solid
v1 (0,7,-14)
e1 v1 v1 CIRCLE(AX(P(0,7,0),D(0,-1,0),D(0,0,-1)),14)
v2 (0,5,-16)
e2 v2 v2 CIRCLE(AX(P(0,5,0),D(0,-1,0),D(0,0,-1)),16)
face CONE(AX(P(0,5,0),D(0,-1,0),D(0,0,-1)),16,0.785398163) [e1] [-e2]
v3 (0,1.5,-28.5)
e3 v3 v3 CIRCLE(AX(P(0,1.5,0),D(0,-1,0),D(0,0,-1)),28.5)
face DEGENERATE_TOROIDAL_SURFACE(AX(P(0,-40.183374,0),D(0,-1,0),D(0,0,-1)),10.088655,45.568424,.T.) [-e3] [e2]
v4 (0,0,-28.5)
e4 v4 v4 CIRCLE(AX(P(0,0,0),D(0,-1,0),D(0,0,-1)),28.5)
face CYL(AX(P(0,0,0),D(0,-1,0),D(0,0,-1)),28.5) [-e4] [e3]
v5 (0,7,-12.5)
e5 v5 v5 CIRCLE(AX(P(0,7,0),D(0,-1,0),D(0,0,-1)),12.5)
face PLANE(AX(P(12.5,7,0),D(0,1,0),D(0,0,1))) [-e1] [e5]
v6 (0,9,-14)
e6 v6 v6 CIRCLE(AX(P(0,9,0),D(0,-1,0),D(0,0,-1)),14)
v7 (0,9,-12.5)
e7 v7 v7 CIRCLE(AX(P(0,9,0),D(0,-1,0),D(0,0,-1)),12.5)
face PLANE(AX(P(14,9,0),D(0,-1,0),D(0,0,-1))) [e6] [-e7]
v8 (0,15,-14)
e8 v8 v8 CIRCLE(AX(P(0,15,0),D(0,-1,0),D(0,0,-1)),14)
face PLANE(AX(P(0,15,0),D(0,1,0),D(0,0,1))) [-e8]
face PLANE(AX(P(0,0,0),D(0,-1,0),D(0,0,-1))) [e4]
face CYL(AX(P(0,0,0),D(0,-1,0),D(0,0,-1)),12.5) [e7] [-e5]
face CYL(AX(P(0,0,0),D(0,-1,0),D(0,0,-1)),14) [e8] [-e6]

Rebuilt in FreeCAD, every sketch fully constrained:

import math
import FreeCAD as App
import Part
import Sketcher
Q = App.Units.Quantity

doc = App.newDocument("Part")
body = doc.addObject("PartDesign::Body", "Body")

sketch1 = body.newObject("Sketcher::SketchObject", "Sketch")
sketch1.AttachmentSupport = (doc.getObject("XY_Plane"), [""])
sketch1.MapMode = "FlatFace"
sketch1.addGeometry(Part.LineSegment(App.Vector(0, 0, 0), App.Vector(28.5, 0, 0)), False)
sketch1.addGeometry(Part.LineSegment(App.Vector(28.5, 0, 0), App.Vector(28.5, 1.5, 0)), False)
sketch1.addGeometry(Part.ArcOfCircle(Part.Circle(App.Vector(10.1, -40.2, 0), App.Vector(0, 0, 1), 45.6), math.radians(66.17), math.radians(82.55)), False)
sketch1.addGeometry(Part.LineSegment(App.Vector(16, 5, 0), App.Vector(14, 7, 0)), False)
sketch1.addGeometry(Part.LineSegment(App.Vector(14, 7, 0), App.Vector(12.5, 7, 0)), False)
sketch1.addGeometry(Part.LineSegment(App.Vector(12.5, 7, 0), App.Vector(12.5, 9, 0)), False)
sketch1.addGeometry(Part.LineSegment(App.Vector(12.5, 9, 0), App.Vector(14, 9, 0)), False)
sketch1.addGeometry(Part.LineSegment(App.Vector(14, 9, 0), App.Vector(14, 15, 0)), False)
sketch1.addGeometry(Part.LineSegment(App.Vector(14, 15, 0), App.Vector(0, 15, 0)), False)
sketch1.addGeometry(Part.LineSegment(App.Vector(0, 15, 0), App.Vector(0, 0, 0)), False)
sketch1.addConstraint(Sketcher.Constraint("Coincident", 0, 2, 1, 1))
sketch1.addConstraint(Sketcher.Constraint("Coincident", 1, 2, 2, 1))
sketch1.addConstraint(Sketcher.Constraint("Coincident", 2, 2, 3, 1))
sketch1.addConstraint(Sketcher.Constraint("Coincident", 3, 2, 4, 1))
sketch1.addConstraint(Sketcher.Constraint("Coincident", 4, 2, 5, 1))
sketch1.addConstraint(Sketcher.Constraint("Coincident", 5, 2, 6, 1))
sketch1.addConstraint(Sketcher.Constraint("Coincident", 6, 2, 7, 1))
sketch1.addConstraint(Sketcher.Constraint("Coincident", 7, 2, 8, 1))
sketch1.addConstraint(Sketcher.Constraint("Coincident", 8, 2, 9, 1))
sketch1.addConstraint(Sketcher.Constraint("Coincident", 9, 2, 0, 1))
sketch1.addConstraint(Sketcher.Constraint("Horizontal", 0))
sketch1.addConstraint(Sketcher.Constraint("Vertical", 1))
sketch1.addConstraint(Sketcher.Constraint("Horizontal", 4))
sketch1.addConstraint(Sketcher.Constraint("Vertical", 5))
sketch1.addConstraint(Sketcher.Constraint("Horizontal", 6))
sketch1.addConstraint(Sketcher.Constraint("Vertical", 7))
sketch1.addConstraint(Sketcher.Constraint("Horizontal", 8))
sketch1.addConstraint(Sketcher.Constraint("Vertical", 9))
sketch1.addConstraint(Sketcher.Constraint("Coincident", 9, 2, -1, 1))
sketch1.addConstraint(Sketcher.Constraint("Vertical", 3, 2, 6, 2))
sketch1.addConstraint(Sketcher.Constraint("Equal", 6, 1))
sketch1.addConstraint(Sketcher.Constraint("DistanceX", 8, 2, 8, 1, Q("14 mm")))
sketch1.addConstraint(Sketcher.Constraint("DistanceY", 5, 1, 5, 2, Q("2 mm")))
sketch1.addConstraint(Sketcher.Constraint("DistanceY", 7, 1, 7, 2, Q("6 mm")))
sketch1.addConstraint(Sketcher.Constraint("DistanceY", 9, 2, 9, 1, Q("15 mm")))
sketch1.addConstraint(Sketcher.Constraint("Angle", 3, Q("135 deg")))
sketch1.addConstraint(Sketcher.Constraint("DistanceX", 0, 1, 0, 2, Q("28.5 mm")))
sketch1.addConstraint(Sketcher.Constraint("DistanceX", 4, 2, 4, 1, Q("1.5 mm")))
sketch1.addConstraint(Sketcher.Constraint("DistanceX", -1, 1, 2, 2, Q("16 mm")))
sketch1.addConstraint(Sketcher.Constraint("Radius", 2, Q("45.568424 mm")))
revolution = body.newObject("PartDesign::Revolution", "Revolution")
revolution.Profile = sketch1
revolution.ReferenceAxis = (sketch1, ["V_Axis"])
revolution.Angle = 360

doc.recompute()
